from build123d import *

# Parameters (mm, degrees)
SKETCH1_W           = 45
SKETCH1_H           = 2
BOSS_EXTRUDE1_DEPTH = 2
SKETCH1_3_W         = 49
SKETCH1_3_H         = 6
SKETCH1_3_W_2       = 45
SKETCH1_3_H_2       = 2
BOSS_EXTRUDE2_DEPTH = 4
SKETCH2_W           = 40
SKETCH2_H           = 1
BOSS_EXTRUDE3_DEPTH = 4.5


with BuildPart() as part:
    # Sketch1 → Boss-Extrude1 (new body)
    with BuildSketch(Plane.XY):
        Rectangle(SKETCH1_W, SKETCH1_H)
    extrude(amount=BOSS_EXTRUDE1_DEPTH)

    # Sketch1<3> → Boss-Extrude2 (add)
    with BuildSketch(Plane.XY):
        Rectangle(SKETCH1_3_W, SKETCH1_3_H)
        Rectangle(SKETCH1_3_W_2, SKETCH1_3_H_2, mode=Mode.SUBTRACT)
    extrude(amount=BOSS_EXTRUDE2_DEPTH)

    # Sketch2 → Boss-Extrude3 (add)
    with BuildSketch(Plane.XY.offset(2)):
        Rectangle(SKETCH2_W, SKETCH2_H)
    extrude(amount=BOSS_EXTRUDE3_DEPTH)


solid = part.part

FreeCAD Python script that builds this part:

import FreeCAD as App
import Part
import Sketcher

doc = App.newDocument("Part")
body = doc.addObject("PartDesign::Body", "Body")

sketch1 = body.newObject("Sketcher::SketchObject", "Sketch")
sketch1.AttachmentSupport = (doc.getObject("XY_Plane"), [""])
sketch1.MapMode = "FlatFace"
sketch1.addGeometry(Part.LineSegment(App.Vector(-22.5, 1, 0), App.Vector(-22.5, -1, 0)), False)
sketch1.addGeometry(Part.LineSegment(App.Vector(-22.5, -1, 0), App.Vector(22.5, -1, 0)), False)
sketch1.addGeometry(Part.LineSegment(App.Vector(22.5, -1, 0), App.Vector(22.5, 1, 0)), False)
sketch1.addGeometry(Part.LineSegment(App.Vector(22.5, 1, 0), App.Vector(-22.5, 1, 0)), False)
sketch1.addConstraint(Sketcher.Constraint("Coincident", 0, 2, 1, 1))
sketch1.addConstraint(Sketcher.Constraint("Coincident", 1, 2, 2, 1))
sketch1.addConstraint(Sketcher.Constraint("Coincident", 2, 2, 3, 1))
sketch1.addConstraint(Sketcher.Constraint("Coincident", 3, 2, 0, 1))
sketch1.addConstraint(Sketcher.Constraint("Vertical", 0))
sketch1.addConstraint(Sketcher.Constraint("Horizontal", 1))
sketch1.addConstraint(Sketcher.Constraint("Vertical", 2))
sketch1.addConstraint(Sketcher.Constraint("Horizontal", 3))
sketch1.addConstraint(Sketcher.Constraint("Symmetric", 0, 2, 2, 2, -1, 1))
sketch1.addConstraint(Sketcher.Constraint("DistanceX", 1, 1, 1, 2, 45.0))
sketch1.addConstraint(Sketcher.Constraint("DistanceY", 0, 2, 0, 1, 2.0))
pad1 = body.newObject("PartDesign::Pad", "Pad")
pad1.Profile = sketch1
pad1.Length = 2

sketch2 = body.newObject("Sketcher::SketchObject", "Sketch001")
sketch2.AttachmentSupport = (doc.getObject("XY_Plane"), [""])
sketch2.MapMode = "FlatFace"
sketch2.addGeometry(Part.LineSegment(App.Vector(-24.5, 3, 0), App.Vector(-24.5, -3, 0)), False)
sketch2.addGeometry(Part.LineSegment(App.Vector(-24.5, -3, 0), App.Vector(24.5, -3, 0)), False)
sketch2.addGeometry(Part.LineSegment(App.Vector(24.5, -3, 0), App.Vector(24.5, 3, 0)), False)
sketch2.addGeometry(Part.LineSegment(App.Vector(24.5, 3, 0), App.Vector(-24.5, 3, 0)), False)
sketch2.addGeometry(Part.LineSegment(App.Vector(22.5, -1, 0), App.Vector(-22.5, -1, 0)), False)
sketch2.addGeometry(Part.LineSegment(App.Vector(-22.5, -1, 0), App.Vector(-22.5, 1, 0)), False)
sketch2.addGeometry(Part.LineSegment(App.Vector(-22.5, 1, 0), App.Vector(22.5, 1, 0)), False)
sketch2.addGeometry(Part.LineSegment(App.Vector(22.5, 1, 0), App.Vector(22.5, -1, 0)), False)
sketch2.addConstraint(Sketcher.Constraint("Coincident", 0, 2, 1, 1))
sketch2.addConstraint(Sketcher.Constraint("Coincident", 1, 2, 2, 1))
sketch2.addConstraint(Sketcher.Constraint("Coincident", 2, 2, 3, 1))
sketch2.addConstraint(Sketcher.Constraint("Coincident", 3, 2, 0, 1))
sketch2.addConstraint(Sketcher.Constraint("Coincident", 4, 2, 5, 1))
sketch2.addConstraint(Sketcher.Constraint("Coincident", 5, 2, 6, 1))
sketch2.addConstraint(Sketcher.Constraint("Coincident", 6, 2, 7, 1))
sketch2.addConstraint(Sketcher.Constraint("Coincident", 7, 2, 4, 1))
sketch2.addConstraint(Sketcher.Constraint("Vertical", 0))
sketch2.addConstraint(Sketcher.Constraint("Horizontal", 1))
sketch2.addConstraint(Sketcher.Constraint("Vertical", 2))
sketch2.addConstraint(Sketcher.Constraint("Horizontal", 3))
sketch2.addConstraint(Sketcher.Constraint("Horizontal", 4))
sketch2.addConstraint(Sketcher.Constraint("Vertical", 5))
sketch2.addConstraint(Sketcher.Constraint("Horizontal", 6))
sketch2.addConstraint(Sketcher.Constraint("Vertical", 7))
sketch2.addConstraint(Sketcher.Constraint("Symmetric", 0, 2, 2, 2, -1, 1))
sketch2.addConstraint(Sketcher.Constraint("Symmetric", 4, 2, 6, 2, -1, 1))
sketch2.addConstraint(Sketcher.Constraint("DistanceX", 1, 1, 1, 2, 49.0))
sketch2.addConstraint(Sketcher.Constraint("DistanceX", 4, 2, 4, 1, 45.0))
sketch2.addConstraint(Sketcher.Constraint("DistanceY", 0, 2, 0, 1, 6.0))
sketch2.addConstraint(Sketcher.Constraint("DistanceY", 5, 1, 5, 2, 2.0))
pad2 = body.newObject("PartDesign::Pad", "Pad001")
pad2.Profile = sketch2
pad2.Length = 4

sketch3 = body.newObject("Sketcher::SketchObject", "Sketch002")
sketch3.AttachmentSupport = (doc.getObject("XY_Plane"), [""])
sketch3.MapMode = "FlatFace"
sketch3.AttachmentOffset = App.Placement(App.Vector(0, 0, 2), App.Rotation())
sketch3.addGeometry(Part.LineSegment(App.Vector(-20, 0.5, 0), App.Vector(-20, -0.5, 0)), False)
sketch3.addGeometry(Part.LineSegment(App.Vector(-20, -0.5, 0), App.Vector(20, -0.5, 0)), False)
sketch3.addGeometry(Part.LineSegment(App.Vector(20, -0.5, 0), App.Vector(20, 0.5, 0)), False)
sketch3.addGeometry(Part.LineSegment(App.Vector(20, 0.5, 0), App.Vector(-20, 0.5, 0)), False)
sketch3.addConstraint(Sketcher.Constraint("Coincident", 0, 2, 1, 1))
sketch3.addConstraint(Sketcher.Constraint("Coincident", 1, 2, 2, 1))
sketch3.addConstraint(Sketcher.Constraint("Coincident", 2, 2, 3, 1))
sketch3.addConstraint(Sketcher.Constraint("Coincident", 3, 2, 0, 1))
sketch3.addConstraint(Sketcher.Constraint("Vertical", 0))
sketch3.addConstraint(Sketcher.Constraint("Horizontal", 1))
sketch3.addConstraint(Sketcher.Constraint("Vertical", 2))
sketch3.addConstraint(Sketcher.Constraint("Horizontal", 3))
sketch3.addConstraint(Sketcher.Constraint("Symmetric", 0, 2, 2, 2, -1, 1))
sketch3.addConstraint(Sketcher.Constraint("DistanceX", 1, 1, 1, 2, 40.0))
sketch3.addConstraint(Sketcher.Constraint("DistanceY", 0, 2, 0, 1, 1.0))
pad3 = body.newObject("PartDesign::Pad", "Pad002")
pad3.Profile = sketch3
pad3.Length = 4.5

doc.recompute()
